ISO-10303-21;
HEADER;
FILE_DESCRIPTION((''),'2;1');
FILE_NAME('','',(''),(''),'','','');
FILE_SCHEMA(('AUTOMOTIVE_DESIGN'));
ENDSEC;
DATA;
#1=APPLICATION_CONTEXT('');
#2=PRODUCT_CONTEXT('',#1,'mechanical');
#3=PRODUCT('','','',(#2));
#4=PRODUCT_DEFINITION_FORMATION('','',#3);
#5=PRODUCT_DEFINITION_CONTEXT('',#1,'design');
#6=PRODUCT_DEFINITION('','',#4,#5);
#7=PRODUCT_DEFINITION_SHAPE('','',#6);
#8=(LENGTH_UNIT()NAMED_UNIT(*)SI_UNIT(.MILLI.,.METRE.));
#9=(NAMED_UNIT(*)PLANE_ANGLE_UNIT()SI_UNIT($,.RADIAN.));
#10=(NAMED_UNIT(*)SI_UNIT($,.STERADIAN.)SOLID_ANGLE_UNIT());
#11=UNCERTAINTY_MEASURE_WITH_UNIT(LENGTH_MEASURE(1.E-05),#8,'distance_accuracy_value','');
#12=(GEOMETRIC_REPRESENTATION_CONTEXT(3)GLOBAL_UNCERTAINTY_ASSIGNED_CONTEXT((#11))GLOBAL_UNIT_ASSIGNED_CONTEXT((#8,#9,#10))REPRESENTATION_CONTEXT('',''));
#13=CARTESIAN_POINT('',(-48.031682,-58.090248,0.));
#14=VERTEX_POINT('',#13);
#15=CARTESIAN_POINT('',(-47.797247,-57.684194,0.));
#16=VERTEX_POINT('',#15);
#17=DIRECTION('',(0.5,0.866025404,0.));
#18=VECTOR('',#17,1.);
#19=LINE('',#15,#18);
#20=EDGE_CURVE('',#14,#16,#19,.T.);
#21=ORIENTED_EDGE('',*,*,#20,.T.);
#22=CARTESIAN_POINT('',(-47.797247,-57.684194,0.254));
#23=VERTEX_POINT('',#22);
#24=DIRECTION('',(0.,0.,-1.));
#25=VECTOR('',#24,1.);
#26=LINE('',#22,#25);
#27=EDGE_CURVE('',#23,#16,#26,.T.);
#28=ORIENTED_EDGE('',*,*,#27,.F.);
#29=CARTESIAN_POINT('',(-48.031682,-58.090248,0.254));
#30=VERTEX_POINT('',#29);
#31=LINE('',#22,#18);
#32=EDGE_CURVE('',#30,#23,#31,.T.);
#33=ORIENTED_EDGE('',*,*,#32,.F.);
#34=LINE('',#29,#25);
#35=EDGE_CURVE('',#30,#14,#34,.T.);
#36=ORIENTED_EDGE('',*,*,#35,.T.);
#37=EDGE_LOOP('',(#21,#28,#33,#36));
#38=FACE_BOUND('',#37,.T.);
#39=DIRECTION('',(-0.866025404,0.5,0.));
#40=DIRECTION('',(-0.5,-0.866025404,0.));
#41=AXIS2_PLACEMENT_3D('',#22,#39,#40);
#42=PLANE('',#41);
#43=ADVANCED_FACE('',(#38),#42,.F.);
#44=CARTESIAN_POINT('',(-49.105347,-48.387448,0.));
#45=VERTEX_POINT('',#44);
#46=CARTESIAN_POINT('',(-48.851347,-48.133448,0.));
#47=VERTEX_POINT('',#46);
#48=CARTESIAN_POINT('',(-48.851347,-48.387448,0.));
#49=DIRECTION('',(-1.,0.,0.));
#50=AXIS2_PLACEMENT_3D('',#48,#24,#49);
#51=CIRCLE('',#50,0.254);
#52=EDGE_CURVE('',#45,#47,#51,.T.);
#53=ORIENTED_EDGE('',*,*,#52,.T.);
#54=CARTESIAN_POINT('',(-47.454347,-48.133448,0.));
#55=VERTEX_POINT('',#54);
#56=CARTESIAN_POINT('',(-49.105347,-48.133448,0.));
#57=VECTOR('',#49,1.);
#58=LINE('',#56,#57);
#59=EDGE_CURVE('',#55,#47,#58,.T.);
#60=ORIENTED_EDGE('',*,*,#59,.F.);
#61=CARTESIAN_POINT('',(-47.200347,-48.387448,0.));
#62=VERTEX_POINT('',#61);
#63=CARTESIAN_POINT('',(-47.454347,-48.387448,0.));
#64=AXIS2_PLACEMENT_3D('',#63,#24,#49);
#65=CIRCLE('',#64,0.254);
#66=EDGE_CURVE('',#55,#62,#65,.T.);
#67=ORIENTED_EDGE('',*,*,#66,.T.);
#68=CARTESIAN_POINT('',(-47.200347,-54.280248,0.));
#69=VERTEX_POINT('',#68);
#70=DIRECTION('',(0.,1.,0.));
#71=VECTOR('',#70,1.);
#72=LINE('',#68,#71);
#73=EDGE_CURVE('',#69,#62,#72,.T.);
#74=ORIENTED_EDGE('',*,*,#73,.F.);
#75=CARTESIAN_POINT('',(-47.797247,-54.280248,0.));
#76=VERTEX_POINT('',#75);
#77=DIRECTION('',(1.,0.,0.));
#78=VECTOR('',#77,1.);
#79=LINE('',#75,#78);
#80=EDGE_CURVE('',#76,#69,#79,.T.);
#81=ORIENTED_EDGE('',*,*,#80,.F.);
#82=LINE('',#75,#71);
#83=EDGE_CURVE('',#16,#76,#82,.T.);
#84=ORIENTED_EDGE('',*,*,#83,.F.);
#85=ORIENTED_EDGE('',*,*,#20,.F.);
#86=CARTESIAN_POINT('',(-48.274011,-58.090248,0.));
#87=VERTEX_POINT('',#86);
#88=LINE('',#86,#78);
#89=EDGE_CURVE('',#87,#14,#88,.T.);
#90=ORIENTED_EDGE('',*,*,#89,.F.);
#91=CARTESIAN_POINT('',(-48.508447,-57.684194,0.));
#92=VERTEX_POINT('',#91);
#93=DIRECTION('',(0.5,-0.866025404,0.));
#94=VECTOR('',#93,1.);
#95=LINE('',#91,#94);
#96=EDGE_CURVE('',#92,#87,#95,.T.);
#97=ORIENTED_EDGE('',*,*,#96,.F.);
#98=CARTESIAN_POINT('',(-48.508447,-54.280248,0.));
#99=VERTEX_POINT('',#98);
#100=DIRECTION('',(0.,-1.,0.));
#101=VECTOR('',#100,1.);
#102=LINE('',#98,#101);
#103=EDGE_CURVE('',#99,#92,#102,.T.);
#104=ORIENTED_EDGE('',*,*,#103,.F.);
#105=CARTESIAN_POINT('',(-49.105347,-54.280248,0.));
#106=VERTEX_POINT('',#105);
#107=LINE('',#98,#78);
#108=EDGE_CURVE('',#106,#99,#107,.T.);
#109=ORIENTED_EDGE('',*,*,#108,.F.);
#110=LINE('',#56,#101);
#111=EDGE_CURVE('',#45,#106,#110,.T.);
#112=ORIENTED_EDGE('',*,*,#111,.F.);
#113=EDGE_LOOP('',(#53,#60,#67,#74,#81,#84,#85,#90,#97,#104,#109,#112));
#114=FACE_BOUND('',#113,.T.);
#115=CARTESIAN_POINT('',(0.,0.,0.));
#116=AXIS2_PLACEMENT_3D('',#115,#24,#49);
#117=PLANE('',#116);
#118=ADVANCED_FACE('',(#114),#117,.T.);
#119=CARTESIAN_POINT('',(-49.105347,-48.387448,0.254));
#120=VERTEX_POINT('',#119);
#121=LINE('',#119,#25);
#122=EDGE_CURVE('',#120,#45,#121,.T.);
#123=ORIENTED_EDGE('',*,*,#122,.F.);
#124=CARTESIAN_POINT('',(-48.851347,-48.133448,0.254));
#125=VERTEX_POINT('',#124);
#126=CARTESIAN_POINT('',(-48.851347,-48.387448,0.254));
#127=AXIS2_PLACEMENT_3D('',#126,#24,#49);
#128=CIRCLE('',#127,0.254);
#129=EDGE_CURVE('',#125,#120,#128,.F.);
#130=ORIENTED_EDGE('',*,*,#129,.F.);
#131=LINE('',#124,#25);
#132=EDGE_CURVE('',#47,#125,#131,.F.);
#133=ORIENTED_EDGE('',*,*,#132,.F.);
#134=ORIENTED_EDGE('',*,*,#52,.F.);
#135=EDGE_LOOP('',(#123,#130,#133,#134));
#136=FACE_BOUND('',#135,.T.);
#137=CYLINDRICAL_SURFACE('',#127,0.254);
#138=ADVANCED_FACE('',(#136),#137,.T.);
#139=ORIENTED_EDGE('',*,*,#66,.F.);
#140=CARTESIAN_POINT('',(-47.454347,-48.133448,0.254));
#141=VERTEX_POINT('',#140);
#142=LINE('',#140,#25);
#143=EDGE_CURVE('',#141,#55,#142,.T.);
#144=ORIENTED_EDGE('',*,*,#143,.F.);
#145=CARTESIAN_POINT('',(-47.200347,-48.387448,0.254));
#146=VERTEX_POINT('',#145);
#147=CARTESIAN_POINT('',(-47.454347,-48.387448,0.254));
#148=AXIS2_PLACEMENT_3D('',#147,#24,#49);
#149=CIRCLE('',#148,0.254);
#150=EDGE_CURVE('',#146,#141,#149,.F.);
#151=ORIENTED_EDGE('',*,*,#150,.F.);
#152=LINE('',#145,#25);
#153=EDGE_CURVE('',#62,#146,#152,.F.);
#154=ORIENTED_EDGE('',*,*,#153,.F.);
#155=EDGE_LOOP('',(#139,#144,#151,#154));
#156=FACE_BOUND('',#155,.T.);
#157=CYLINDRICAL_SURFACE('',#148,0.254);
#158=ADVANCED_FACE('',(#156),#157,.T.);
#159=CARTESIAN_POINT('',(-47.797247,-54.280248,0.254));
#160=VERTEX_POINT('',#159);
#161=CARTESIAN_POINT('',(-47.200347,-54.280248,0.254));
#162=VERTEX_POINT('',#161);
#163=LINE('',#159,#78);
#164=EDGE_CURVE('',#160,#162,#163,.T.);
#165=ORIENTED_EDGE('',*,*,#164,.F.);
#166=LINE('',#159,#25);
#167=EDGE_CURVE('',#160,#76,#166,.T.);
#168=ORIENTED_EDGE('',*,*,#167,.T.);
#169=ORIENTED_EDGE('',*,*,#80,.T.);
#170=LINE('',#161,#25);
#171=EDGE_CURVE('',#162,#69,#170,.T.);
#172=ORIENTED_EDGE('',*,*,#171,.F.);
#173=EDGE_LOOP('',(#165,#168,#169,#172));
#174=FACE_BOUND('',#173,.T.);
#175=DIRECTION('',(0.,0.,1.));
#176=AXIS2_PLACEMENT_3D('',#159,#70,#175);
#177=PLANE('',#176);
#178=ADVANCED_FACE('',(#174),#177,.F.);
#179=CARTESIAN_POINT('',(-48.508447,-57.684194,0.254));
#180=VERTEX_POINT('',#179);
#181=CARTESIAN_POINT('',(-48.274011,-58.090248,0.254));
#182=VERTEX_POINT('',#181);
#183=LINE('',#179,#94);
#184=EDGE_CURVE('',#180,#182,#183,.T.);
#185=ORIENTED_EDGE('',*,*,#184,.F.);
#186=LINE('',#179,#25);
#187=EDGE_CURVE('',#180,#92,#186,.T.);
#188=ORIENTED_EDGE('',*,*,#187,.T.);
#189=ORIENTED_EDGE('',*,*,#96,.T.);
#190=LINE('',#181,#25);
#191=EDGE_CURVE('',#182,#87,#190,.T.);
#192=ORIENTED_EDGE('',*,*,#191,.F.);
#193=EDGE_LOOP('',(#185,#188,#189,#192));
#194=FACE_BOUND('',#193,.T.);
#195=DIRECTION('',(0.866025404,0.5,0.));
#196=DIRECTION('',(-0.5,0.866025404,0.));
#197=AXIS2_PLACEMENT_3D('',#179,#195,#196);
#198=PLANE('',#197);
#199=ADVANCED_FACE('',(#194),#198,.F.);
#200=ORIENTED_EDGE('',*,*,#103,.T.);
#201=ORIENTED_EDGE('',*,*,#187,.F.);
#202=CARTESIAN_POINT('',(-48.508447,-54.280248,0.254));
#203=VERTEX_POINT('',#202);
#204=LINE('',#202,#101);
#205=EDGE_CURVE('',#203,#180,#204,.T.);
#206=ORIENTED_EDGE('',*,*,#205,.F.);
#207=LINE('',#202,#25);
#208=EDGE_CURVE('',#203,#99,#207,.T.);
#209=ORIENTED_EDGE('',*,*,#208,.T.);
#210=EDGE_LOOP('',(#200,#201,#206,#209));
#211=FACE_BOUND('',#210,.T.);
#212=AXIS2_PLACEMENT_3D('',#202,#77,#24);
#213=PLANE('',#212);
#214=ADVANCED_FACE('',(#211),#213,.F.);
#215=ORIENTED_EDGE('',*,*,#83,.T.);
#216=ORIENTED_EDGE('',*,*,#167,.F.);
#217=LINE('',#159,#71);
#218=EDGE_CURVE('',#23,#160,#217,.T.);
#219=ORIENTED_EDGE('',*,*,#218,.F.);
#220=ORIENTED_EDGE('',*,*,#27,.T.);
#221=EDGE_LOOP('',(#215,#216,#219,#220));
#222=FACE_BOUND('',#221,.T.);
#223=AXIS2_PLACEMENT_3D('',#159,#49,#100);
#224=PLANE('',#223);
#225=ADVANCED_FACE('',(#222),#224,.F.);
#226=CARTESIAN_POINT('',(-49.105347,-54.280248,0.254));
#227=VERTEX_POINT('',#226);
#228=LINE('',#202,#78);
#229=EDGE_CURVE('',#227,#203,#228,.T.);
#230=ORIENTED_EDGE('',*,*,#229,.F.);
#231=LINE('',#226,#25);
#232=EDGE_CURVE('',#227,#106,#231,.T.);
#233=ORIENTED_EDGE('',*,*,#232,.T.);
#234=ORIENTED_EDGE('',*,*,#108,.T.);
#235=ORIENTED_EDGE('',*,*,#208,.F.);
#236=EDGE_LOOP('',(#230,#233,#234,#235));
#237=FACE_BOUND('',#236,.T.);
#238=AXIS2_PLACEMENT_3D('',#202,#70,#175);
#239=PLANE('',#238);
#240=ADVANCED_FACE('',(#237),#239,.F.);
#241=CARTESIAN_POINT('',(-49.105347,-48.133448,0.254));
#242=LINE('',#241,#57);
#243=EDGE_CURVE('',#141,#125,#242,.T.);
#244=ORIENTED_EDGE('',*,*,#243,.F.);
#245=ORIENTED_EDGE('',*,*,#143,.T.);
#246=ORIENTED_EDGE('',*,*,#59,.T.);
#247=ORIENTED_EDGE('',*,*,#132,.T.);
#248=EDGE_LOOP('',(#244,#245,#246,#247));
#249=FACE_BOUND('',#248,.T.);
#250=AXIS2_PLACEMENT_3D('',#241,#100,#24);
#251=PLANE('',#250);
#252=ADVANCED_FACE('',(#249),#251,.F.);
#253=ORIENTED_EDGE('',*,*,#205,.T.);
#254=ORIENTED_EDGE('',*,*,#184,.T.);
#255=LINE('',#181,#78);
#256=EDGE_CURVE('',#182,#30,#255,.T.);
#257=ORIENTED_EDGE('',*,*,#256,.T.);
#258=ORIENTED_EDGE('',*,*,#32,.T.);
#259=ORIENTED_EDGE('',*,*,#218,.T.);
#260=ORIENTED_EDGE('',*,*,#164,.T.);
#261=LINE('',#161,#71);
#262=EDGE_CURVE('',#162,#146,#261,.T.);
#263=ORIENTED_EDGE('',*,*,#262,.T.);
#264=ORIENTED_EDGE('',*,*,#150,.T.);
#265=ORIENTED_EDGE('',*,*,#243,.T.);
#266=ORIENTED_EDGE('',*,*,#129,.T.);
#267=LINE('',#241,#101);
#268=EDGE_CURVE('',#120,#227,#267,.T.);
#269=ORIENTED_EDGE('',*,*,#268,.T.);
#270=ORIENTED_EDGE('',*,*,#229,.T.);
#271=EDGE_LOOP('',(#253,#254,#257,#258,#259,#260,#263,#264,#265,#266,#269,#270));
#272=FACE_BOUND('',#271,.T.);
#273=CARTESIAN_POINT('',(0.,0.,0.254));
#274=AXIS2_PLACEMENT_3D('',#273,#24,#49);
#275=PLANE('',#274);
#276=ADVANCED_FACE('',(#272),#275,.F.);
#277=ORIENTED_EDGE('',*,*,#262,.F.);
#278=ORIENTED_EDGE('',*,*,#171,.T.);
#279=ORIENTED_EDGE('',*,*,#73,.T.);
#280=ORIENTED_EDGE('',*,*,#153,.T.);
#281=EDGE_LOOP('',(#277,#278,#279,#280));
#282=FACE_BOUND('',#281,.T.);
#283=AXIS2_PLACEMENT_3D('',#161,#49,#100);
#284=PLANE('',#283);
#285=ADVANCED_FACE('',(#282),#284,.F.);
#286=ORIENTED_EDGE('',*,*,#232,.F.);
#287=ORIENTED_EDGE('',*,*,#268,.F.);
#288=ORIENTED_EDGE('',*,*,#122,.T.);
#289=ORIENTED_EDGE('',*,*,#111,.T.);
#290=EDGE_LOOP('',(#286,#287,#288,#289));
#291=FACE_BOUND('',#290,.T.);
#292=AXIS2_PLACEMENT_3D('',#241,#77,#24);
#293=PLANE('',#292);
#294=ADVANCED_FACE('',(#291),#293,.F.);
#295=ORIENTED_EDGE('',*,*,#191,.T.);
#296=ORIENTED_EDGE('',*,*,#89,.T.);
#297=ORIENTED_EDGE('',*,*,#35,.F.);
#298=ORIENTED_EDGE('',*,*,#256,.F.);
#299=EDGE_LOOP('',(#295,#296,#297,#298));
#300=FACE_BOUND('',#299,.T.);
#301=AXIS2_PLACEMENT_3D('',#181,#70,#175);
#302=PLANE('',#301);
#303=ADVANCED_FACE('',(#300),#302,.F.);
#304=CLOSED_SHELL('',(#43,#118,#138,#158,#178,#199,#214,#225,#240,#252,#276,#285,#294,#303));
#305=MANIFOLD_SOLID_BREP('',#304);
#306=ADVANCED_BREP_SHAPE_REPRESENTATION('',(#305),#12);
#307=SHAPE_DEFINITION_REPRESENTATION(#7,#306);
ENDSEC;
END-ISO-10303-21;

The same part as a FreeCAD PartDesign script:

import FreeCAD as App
import Part
import Sketcher

V = App.Vector
Q = App.Units.Quantity


def edges_at(feature, points):
    """Names of the edges that pass closest to the given points."""
    edges = feature.Shape.Edges
    near = lambda p: min(range(len(edges)), key=lambda i: edges[i].distToShape(Part.Vertex(*p))[0])
    return sorted({f"Edge{near(p) + 1}" for p in points})

doc = App.newDocument("Part")
params = doc.addObject("Spreadsheet::Sheet", "Params")
for row, (alias, value) in enumerate([
    ("sketch1_width", "0.075 in"),
    ("sketch1_height", "0.242 in"),
    ("pad1_length", "0.01 in"),
    ("fillet_radius", "0.01 in"),
], start=1):
    params.set(f"A{row}", alias)
    params.set(f"B{row}", "=" + value)
    params.setAlias(f"B{row}", alias)

body = doc.addObject("PartDesign::Body", "Body")

# Sketch on XY plane
sketch1 = body.newObject("Sketcher::SketchObject", "Sketch")
sketch1.AttachmentSupport = (doc.getObject("XY_Plane"), [""])
sketch1.MapMode = "FlatFace"
sketch1.addGeometry(Part.LineSegment(V(-47.2, -48.13, 0), V(-49.11, -48.13, 0)), False)
sketch1.addGeometry(Part.LineSegment(V(-49.11, -48.13, 0), V(-49.11, -54.28, 0)), False)
sketch1.addGeometry(Part.LineSegment(V(-49.11, -54.28, 0), V(-48.51, -54.28, 0)), False)
sketch1.addGeometry(Part.LineSegment(V(-48.51, -54.28, 0), V(-48.51, -57.68, 0)), False)
sketch1.addGeometry(Part.LineSegment(V(-48.51, -57.68, 0), V(-48.27, -58.09, 0)), False)
sketch1.addGeometry(Part.LineSegment(V(-48.27, -58.09, 0), V(-48.03, -58.09, 0)), False)
sketch1.addGeometry(Part.LineSegment(V(-48.03, -58.09, 0), V(-47.8, -57.68, 0)), False)
sketch1.addGeometry(Part.LineSegment(V(-47.8, -57.68, 0), V(-47.8, -54.28, 0)), False)
sketch1.addGeometry(Part.LineSegment(V(-47.8, -54.28, 0), V(-47.2, -54.28, 0)), False)
sketch1.addGeometry(Part.LineSegment(V(-47.2, -54.28, 0), V(-47.2, -48.13, 0)), False)
sketch1.addConstraint(Sketcher.Constraint("Coincident", 0, 2, 1, 1))
sketch1.addConstraint(Sketcher.Constraint("Coincident", 1, 2, 2, 1))
sketch1.addConstraint(Sketcher.Constraint("Coincident", 2, 2, 3, 1))
sketch1.addConstraint(Sketcher.Constraint("Coincident", 3, 2, 4, 1))
sketch1.addConstraint(Sketcher.Constraint("Coincident", 4, 2, 5, 1))
sketch1.addConstraint(Sketcher.Constraint("Coincident", 5, 2, 6, 1))
sketch1.addConstraint(Sketcher.Constraint("Coincident", 6, 2, 7, 1))
sketch1.addConstraint(Sketcher.Constraint("Coincident", 7, 2, 8, 1))
sketch1.addConstraint(Sketcher.Constraint("Coincident", 8, 2, 9, 1))
sketch1.addConstraint(Sketcher.Constraint("Coincident", 9, 2, 0, 1))
sketch1.addConstraint(Sketcher.Constraint("Horizontal", 0))
sketch1.addConstraint(Sketcher.Constraint("Vertical", 1))
sketch1.addConstraint(Sketcher.Constraint("Horizontal", 2))
sketch1.addConstraint(Sketcher.Constraint("Vertical", 3))
sketch1.addConstraint(Sketcher.Constraint("Horizontal", 5))
sketch1.addConstraint(Sketcher.Constraint("Vertical", 7))
sketch1.addConstraint(Sketcher.Constraint("Horizontal", 8))
sketch1.addConstraint(Sketcher.Constraint("Vertical", 9))
sketch1.addConstraint(Sketcher.Constraint("Horizontal", 3, 2, 6, 2))
sketch1.addConstraint(Sketcher.Constraint("Horizontal", 2, 2, 7, 2))
sketch1.addConstraint(Sketcher.Constraint("Equal", 2, 8))
sketch1.addConstraint(Sketcher.Constraint("Equal", 4, 6))
sketch1.addConstraint(Sketcher.Constraint("Angle", 4, Q("-60 deg")))
sketch1.addConstraint(Sketcher.Constraint("DistanceX", 0, 2, 0, 1, Q("0.075 in")))
sketch1.addConstraint(Sketcher.Constraint("DistanceY", 1, 2, 1, 1, Q("0.242 in")))
sketch1.addConstraint(Sketcher.Constraint("DistanceY", 4, 2, 2, 2, Q("0.15 in")))
sketch1.addConstraint(Sketcher.Constraint("DistanceX", 2, 1, 2, 2, Q("0.0235 in")))
sketch1.addConstraint(Sketcher.Constraint("DistanceX", 5, 1, 5, 2, 0.242329))
sketch1.addConstraint(Sketcher.Constraint("DistanceY", 0, 2, -1, 1, 48.133448))
sketch1.addConstraint(Sketcher.Constraint("DistanceX", 4, 2, -1, 1, 48.274011))
sketch1.setExpression("Constraints[23]", "Params.sketch1_width")
sketch1.setExpression("Constraints[24]", "Params.sketch1_height")
pad1 = body.newObject("PartDesign::Pad", "Pad")
pad1.Profile = sketch1
pad1.setExpression("Length", "Params.pad1_length")
doc.recompute()

fillet = body.newObject("PartDesign::Fillet", "Fillet")
fillet.Base = (pad1, edges_at(pad1, [(-49.105, -48.133, 0.127), (-47.2, -48.133, 0.127)]))
fillet.setExpression("Radius", "Params.fillet_radius")

doc.recompute()
